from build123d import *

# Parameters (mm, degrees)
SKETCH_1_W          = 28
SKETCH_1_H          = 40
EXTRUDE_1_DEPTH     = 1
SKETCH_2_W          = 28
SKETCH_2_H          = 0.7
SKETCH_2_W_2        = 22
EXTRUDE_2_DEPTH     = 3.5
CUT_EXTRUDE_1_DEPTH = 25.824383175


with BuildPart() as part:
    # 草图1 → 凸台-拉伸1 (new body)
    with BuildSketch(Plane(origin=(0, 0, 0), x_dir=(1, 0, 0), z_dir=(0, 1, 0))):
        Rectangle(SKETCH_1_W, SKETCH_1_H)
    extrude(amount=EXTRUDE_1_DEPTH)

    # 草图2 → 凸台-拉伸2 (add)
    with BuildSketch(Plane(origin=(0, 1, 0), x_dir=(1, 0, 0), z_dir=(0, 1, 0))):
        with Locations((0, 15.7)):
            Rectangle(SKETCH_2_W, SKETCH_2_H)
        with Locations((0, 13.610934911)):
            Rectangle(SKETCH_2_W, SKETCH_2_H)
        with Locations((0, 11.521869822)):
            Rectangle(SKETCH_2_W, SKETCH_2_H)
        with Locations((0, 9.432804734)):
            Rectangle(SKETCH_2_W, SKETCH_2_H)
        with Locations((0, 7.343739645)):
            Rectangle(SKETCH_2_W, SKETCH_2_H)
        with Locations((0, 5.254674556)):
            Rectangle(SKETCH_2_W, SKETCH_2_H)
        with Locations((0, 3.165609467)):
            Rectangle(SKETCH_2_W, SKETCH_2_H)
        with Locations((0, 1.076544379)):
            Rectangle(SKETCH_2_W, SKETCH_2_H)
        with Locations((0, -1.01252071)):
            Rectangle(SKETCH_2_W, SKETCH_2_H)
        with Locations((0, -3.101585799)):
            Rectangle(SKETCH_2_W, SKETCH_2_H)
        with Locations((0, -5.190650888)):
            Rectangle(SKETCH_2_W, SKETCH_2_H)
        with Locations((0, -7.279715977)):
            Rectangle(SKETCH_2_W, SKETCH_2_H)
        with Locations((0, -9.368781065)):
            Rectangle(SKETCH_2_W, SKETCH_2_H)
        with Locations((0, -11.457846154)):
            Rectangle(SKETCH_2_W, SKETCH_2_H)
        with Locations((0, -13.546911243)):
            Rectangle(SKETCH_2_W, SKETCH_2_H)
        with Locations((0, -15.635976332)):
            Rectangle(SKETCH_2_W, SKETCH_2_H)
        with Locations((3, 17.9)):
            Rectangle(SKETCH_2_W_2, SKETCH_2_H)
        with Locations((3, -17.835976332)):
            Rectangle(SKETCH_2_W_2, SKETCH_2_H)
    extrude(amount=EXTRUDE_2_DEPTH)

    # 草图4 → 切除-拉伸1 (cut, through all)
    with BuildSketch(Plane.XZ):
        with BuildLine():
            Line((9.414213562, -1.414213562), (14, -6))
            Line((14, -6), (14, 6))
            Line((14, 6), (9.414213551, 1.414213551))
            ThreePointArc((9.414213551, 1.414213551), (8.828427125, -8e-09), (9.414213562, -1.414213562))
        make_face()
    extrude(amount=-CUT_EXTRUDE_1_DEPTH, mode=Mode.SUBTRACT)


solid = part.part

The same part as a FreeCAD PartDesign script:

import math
import FreeCAD as App
import Part
import Sketcher

V = App.Vector
Q = App.Units.Quantity

doc = App.newDocument("Part")
body = doc.addObject("PartDesign::Body", "Body")

sketch1 = body.newObject("Sketcher::SketchObject", "Sketch")
sketch1.AttachmentSupport = (doc.getObject("XZ_Plane"), [""])
sketch1.MapMode = "FlatFace"
sketch1.addGeometry([
    Part.LineSegment(V(-14, -20, 0), V(-14, 20, 0)),
    Part.LineSegment(V(-14, 20, 0), V(14, 20, 0)),
    Part.LineSegment(V(14, 20, 0), V(14, -20, 0)),
    Part.LineSegment(V(14, -20, 0), V(-14, -20, 0)),
], False)
sketch1.addConstraint([
    Sketcher.Constraint("Coincident", 0, 2, 1, 1),
    Sketcher.Constraint("Coincident", 1, 2, 2, 1),
    Sketcher.Constraint("Coincident", 2, 2, 3, 1),
    Sketcher.Constraint("Coincident", 3, 2, 0, 1),
    Sketcher.Constraint("Vertical", 0),
    Sketcher.Constraint("Horizontal", 1),
    Sketcher.Constraint("Vertical", 2),
    Sketcher.Constraint("Horizontal", 3),
    Sketcher.Constraint("Symmetric", 0, 2, 2, 2, -1, 1),
    Sketcher.Constraint("DistanceX", 1, 1, 1, 2, Q("28 mm")),
    Sketcher.Constraint("DistanceY", 0, 1, 0, 2, Q("40 mm")),
])
pad1 = body.newObject("PartDesign::Pad", "Pad")
pad1.Profile = sketch1
pad1.Length = 1
pad1.Reversed = True

sketch2 = body.newObject("Sketcher::SketchObject", "Sketch001")
sketch2.AttachmentSupport = (doc.getObject("XZ_Plane"), [""])
sketch2.MapMode = "FlatFace"
sketch2.AttachmentOffset = App.Placement(V(0, 0, -1), App.Rotation())
sketch2.addGeometry([
    Part.LineSegment(V(-14, -16.05, 0), V(-14, -15.35, 0)),
    Part.LineSegment(V(-14, -15.35, 0), V(14, -15.35, 0)),
    Part.LineSegment(V(14, -15.35, 0), V(14, -16.05, 0)),
    Part.LineSegment(V(14, -16.05, 0), V(-14, -16.05, 0)),
    Part.LineSegment(V(-14, -13.960935, 0), V(-14, -13.260935, 0)),
    Part.LineSegment(V(-14, -13.260935, 0), V(14, -13.260935, 0)),
    Part.LineSegment(V(14, -13.260935, 0), V(14, -13.960935, 0)),
    Part.LineSegment(V(14, -13.960935, 0), V(-14, -13.960935, 0)),
    Part.LineSegment(V(-14, -11.87187, 0), V(-14, -11.17187, 0)),
    Part.LineSegment(V(-14, -11.17187, 0), V(14, -11.17187, 0)),
    Part.LineSegment(V(14, -11.17187, 0), V(14, -11.87187, 0)),
    Part.LineSegment(V(14, -11.87187, 0), V(-14, -11.87187, 0)),
    Part.LineSegment(V(-14, -9.782805, 0), V(-14, -9.082805, 0)),
    Part.LineSegment(V(-14, -9.082805, 0), V(14, -9.082805, 0)),
    Part.LineSegment(V(14, -9.082805, 0), V(14, -9.782805, 0)),
    Part.LineSegment(V(14, -9.782805, 0), V(-14, -9.782805, 0)),
    Part.LineSegment(V(-14, -7.69374, 0), V(-14, -6.99374, 0)),
    Part.LineSegment(V(-14, -6.99374, 0), V(14, -6.99374, 0)),
    Part.LineSegment(V(14, -6.99374, 0), V(14, -7.69374, 0)),
    Part.LineSegment(V(14, -7.69374, 0), V(-14, -7.69374, 0)),
    Part.LineSegment(V(-14, -5.604675, 0), V(-14, -4.904675, 0)),
    Part.LineSegment(V(-14, -4.904675, 0), V(14, -4.904675, 0)),
    Part.LineSegment(V(14, -4.904675, 0), V(14, -5.604675, 0)),
    Part.LineSegment(V(14, -5.604675, 0), V(-14, -5.604675, 0)),
    Part.LineSegment(V(-14, -3.515609, 0), V(-14, -2.815609, 0)),
    Part.LineSegment(V(-14, -2.815609, 0), V(14, -2.815609, 0)),
    Part.LineSegment(V(14, -2.815609, 0), V(14, -3.515609, 0)),
    Part.LineSegment(V(14, -3.515609, 0), V(-14, -3.515609, 0)),
    Part.LineSegment(V(-14, -1.426544, 0), V(-14, -0.726544, 0)),
    Part.LineSegment(V(-14, -0.726544, 0), V(14, -0.726544, 0)),
    Part.LineSegment(V(14, -0.726544, 0), V(14, -1.426544, 0)),
    Part.LineSegment(V(14, -1.426544, 0), V(-14, -1.426544, 0)),
    Part.LineSegment(V(-14, 0.662521, 0), V(-14, 1.362521, 0)),
    Part.LineSegment(V(-14, 1.362521, 0), V(14, 1.362521, 0)),
    Part.LineSegment(V(14, 1.362521, 0), V(14, 0.662521, 0)),
    Part.LineSegment(V(14, 0.662521, 0), V(-14, 0.662521, 0)),
    Part.LineSegment(V(-14, 2.751586, 0), V(-14, 3.451586, 0)),
    Part.LineSegment(V(-14, 3.451586, 0), V(14, 3.451586, 0)),
    Part.LineSegment(V(14, 3.451586, 0), V(14, 2.751586, 0)),
    Part.LineSegment(V(14, 2.751586, 0), V(-14, 2.751586, 0)),
    Part.LineSegment(V(-14, 4.840651, 0), V(-14, 5.540651, 0)),
    Part.LineSegment(V(-14, 5.540651, 0), V(14, 5.540651, 0)),
    Part.LineSegment(V(14, 5.540651, 0), V(14, 4.840651, 0)),
    Part.LineSegment(V(14, 4.840651, 0), V(-14, 4.840651, 0)),
    Part.LineSegment(V(-14, 6.929716, 0), V(-14, 7.629716, 0)),
    Part.LineSegment(V(-14, 7.629716, 0), V(14, 7.629716, 0)),
    Part.LineSegment(V(14, 7.629716, 0), V(14, 6.929716, 0)),
    Part.LineSegment(V(14, 6.929716, 0), V(-14, 6.929716, 0)),
    Part.LineSegment(V(-14, 9.018781, 0), V(-14, 9.718781, 0)),
    Part.LineSegment(V(-14, 9.718781, 0), V(14, 9.718781, 0)),
    Part.LineSegment(V(14, 9.718781, 0), V(14, 9.018781, 0)),
    Part.LineSegment(V(14, 9.018781, 0), V(-14, 9.018781, 0)),
    Part.LineSegment(V(-14, 11.107846, 0), V(-14, 11.807846, 0)),
    Part.LineSegment(V(-14, 11.807846, 0), V(14, 11.807846, 0)),
    Part.LineSegment(V(14, 11.807846, 0), V(14, 11.107846, 0)),
    Part.LineSegment(V(14, 11.107846, 0), V(-14, 11.107846, 0)),
    Part.LineSegment(V(-14, 13.196911, 0), V(-14, 13.896911, 0)),
    Part.LineSegment(V(-14, 13.896911, 0), V(14, 13.896911, 0)),
    Part.LineSegment(V(14, 13.896911, 0), V(14, 13.196911, 0)),
    Part.LineSegment(V(14, 13.196911, 0), V(-14, 13.196911, 0)),
    Part.LineSegment(V(-14, 15.285976, 0), V(-14, 15.985976, 0)),
    Part.LineSegment(V(-14, 15.985976, 0), V(14, 15.985976, 0)),
    Part.LineSegment(V(14, 15.985976, 0), V(14, 15.285976, 0)),
    Part.LineSegment(V(14, 15.285976, 0), V(-14, 15.285976, 0)),
    Part.LineSegment(V(-8, -18.25, 0), V(-8, -17.55, 0)),
    Part.LineSegment(V(-8, -17.55, 0), V(14, -17.55, 0)),
    Part.LineSegment(V(14, -17.55, 0), V(14, -18.25, 0)),
    Part.LineSegment(V(14, -18.25, 0), V(-8, -18.25, 0)),
    Part.LineSegment(V(-8, 17.485976, 0), V(-8, 18.185976, 0)),
    Part.LineSegment(V(-8, 18.185976, 0), V(14, 18.185976, 0)),
    Part.LineSegment(V(14, 18.185976, 0), V(14, 17.485976, 0)),
    Part.LineSegment(V(14, 17.485976, 0), V(-8, 17.485976, 0)),
], False)
sketch2.addConstraint([
    Sketcher.Constraint("Coincident", 0, 2, 1, 1),
    Sketcher.Constraint("Coincident", 1, 2, 2, 1),
    Sketcher.Constraint("Coincident", 2, 2, 3, 1),
    Sketcher.Constraint("Coincident", 3, 2, 0, 1),
    Sketcher.Constraint("Coincident", 4, 2, 5, 1),
    Sketcher.Constraint("Coincident", 5, 2, 6, 1),
    Sketcher.Constraint("Coincident", 6, 2, 7, 1),
    Sketcher.Constraint("Coincident", 7, 2, 4, 1),
    Sketcher.Constraint("Coincident", 8, 2, 9, 1),
    Sketcher.Constraint("Coincident", 9, 2, 10, 1),
    Sketcher.Constraint("Coincident", 10, 2, 11, 1),
    Sketcher.Constraint("Coincident", 11, 2, 8, 1),
    Sketcher.Constraint("Coincident", 12, 2, 13, 1),
    Sketcher.Constraint("Coincident", 13, 2, 14, 1),
    Sketcher.Constraint("Coincident", 14, 2, 15, 1),
    Sketcher.Constraint("Coincident", 15, 2, 12, 1),
    Sketcher.Constraint("Coincident", 16, 2, 17, 1),
    Sketcher.Constraint("Coincident", 17, 2, 18, 1),
    Sketcher.Constraint("Coincident", 18, 2, 19, 1),
    Sketcher.Constraint("Coincident", 19, 2, 16, 1),
    Sketcher.Constraint("Coincident", 20, 2, 21, 1),
    Sketcher.Constraint("Coincident", 21, 2, 22, 1),
    Sketcher.Constraint("Coincident", 22, 2, 23, 1),
    Sketcher.Constraint("Coincident", 23, 2, 20, 1),
    Sketcher.Constraint("Coincident", 24, 2, 25, 1),
    Sketcher.Constraint("Coincident", 25, 2, 26, 1),
    Sketcher.Constraint("Coincident", 26, 2, 27, 1),
    Sketcher.Constraint("Coincident", 27, 2, 24, 1),
    Sketcher.Constraint("Coincident", 28, 2, 29, 1),
    Sketcher.Constraint("Coincident", 29, 2, 30, 1),
    Sketcher.Constraint("Coincident", 30, 2, 31, 1),
    Sketcher.Constraint("Coincident", 31, 2, 28, 1),
    Sketcher.Constraint("Coincident", 32, 2, 33, 1),
    Sketcher.Constraint("Coincident", 33, 2, 34, 1),
    Sketcher.Constraint("Coincident", 34, 2, 35, 1),
    Sketcher.Constraint("Coincident", 35, 2, 32, 1),
    Sketcher.Constraint("Coincident", 36, 2, 37, 1),
    Sketcher.Constraint("Coincident", 37, 2, 38, 1),
    Sketcher.Constraint("Coincident", 38, 2, 39, 1),
    Sketcher.Constraint("Coincident", 39, 2, 36, 1),
    Sketcher.Constraint("Coincident", 40, 2, 41, 1),
    Sketcher.Constraint("Coincident", 41, 2, 42, 1),
    Sketcher.Constraint("Coincident", 42, 2, 43, 1),
    Sketcher.Constraint("Coincident", 43, 2, 40, 1),
    Sketcher.Constraint("Coincident", 44, 2, 45, 1),
    Sketcher.Constraint("Coincident", 45, 2, 46, 1),
    Sketcher.Constraint("Coincident", 46, 2, 47, 1),
    Sketcher.Constraint("Coincident", 47, 2, 44, 1),
    Sketcher.Constraint("Coincident", 48, 2, 49, 1),
    Sketcher.Constraint("Coincident", 49, 2, 50, 1),
    Sketcher.Constraint("Coincident", 50, 2, 51, 1),
    Sketcher.Constraint("Coincident", 51, 2, 48, 1),
    Sketcher.Constraint("Coincident", 52, 2, 53, 1),
    Sketcher.Constraint("Coincident", 53, 2, 54, 1),
    Sketcher.Constraint("Coincident", 54, 2, 55, 1),
    Sketcher.Constraint("Coincident", 55, 2, 52, 1),
    Sketcher.Constraint("Coincident", 56, 2, 57, 1),
    Sketcher.Constraint("Coincident", 57, 2, 58, 1),
    Sketcher.Constraint("Coincident", 58, 2, 59, 1),
    Sketcher.Constraint("Coincident", 59, 2, 56, 1),
    Sketcher.Constraint("Coincident", 60, 2, 61, 1),
    Sketcher.Constraint("Coincident", 61, 2, 62, 1),
    Sketcher.Constraint("Coincident", 62, 2, 63, 1),
    Sketcher.Constraint("Coincident", 63, 2, 60, 1),
    Sketcher.Constraint("Coincident", 64, 2, 65, 1),
    Sketcher.Constraint("Coincident", 65, 2, 66, 1),
    Sketcher.Constraint("Coincident", 66, 2, 67, 1),
    Sketcher.Constraint("Coincident", 67, 2, 64, 1),
    Sketcher.Constraint("Coincident", 68, 2, 69, 1),
    Sketcher.Constraint("Coincident", 69, 2, 70, 1),
    Sketcher.Constraint("Coincident", 70, 2, 71, 1),
    Sketcher.Constraint("Coincident", 71, 2, 68, 1),
    Sketcher.Constraint("Vertical", 0),
    Sketcher.Constraint("Horizontal", 1),
    Sketcher.Constraint("Vertical", 2),
    Sketcher.Constraint("Horizontal", 3),
    Sketcher.Constraint("Vertical", 4),
    Sketcher.Constraint("Horizontal", 5),
    Sketcher.Constraint("Vertical", 6),
    Sketcher.Constraint("Horizontal", 7),
    Sketcher.Constraint("Vertical", 8),
    Sketcher.Constraint("Horizontal", 9),
    Sketcher.Constraint("Vertical", 10),
    Sketcher.Constraint("Horizontal", 11),
    Sketcher.Constraint("Vertical", 12),
    Sketcher.Constraint("Horizontal", 13),
    Sketcher.Constraint("Vertical", 14),
    Sketcher.Constraint("Horizontal", 15),
    Sketcher.Constraint("Vertical", 16),
    Sketcher.Constraint("Horizontal", 17),
    Sketcher.Constraint("Vertical", 18),
    Sketcher.Constraint("Horizontal", 19),
    Sketcher.Constraint("Vertical", 20),
    Sketcher.Constraint("Horizontal", 21),
    Sketcher.Constraint("Vertical", 22),
    Sketcher.Constraint("Horizontal", 23),
    Sketcher.Constraint("Vertical", 24),
    Sketcher.Constraint("Horizontal", 25),
    Sketcher.Constraint("Vertical", 26),
    Sketcher.Constraint("Horizontal", 27),
    Sketcher.Constraint("Vertical", 28),
    Sketcher.Constraint("Horizontal", 29),
    Sketcher.Constraint("Vertical", 30),
    Sketcher.Constraint("Horizontal", 31),
    Sketcher.Constraint("Vertical", 32),
    Sketcher.Constraint("Horizontal", 33),
    Sketcher.Constraint("Vertical", 34),
    Sketcher.Constraint("Horizontal", 35),
    Sketcher.Constraint("Vertical", 36),
    Sketcher.Constraint("Horizontal", 37),
    Sketcher.Constraint("Vertical", 38),
    Sketcher.Constraint("Horizontal", 39),
    Sketcher.Constraint("Vertical", 40),
    Sketcher.Constraint("Horizontal", 41),
    Sketcher.Constraint("Vertical", 42),
    Sketcher.Constraint("Horizontal", 43),
    Sketcher.Constraint("Vertical", 44),
    Sketcher.Constraint("Horizontal", 45),
    Sketcher.Constraint("Vertical", 46),
    Sketcher.Constraint("Horizontal", 47),
    Sketcher.Constraint("Vertical", 48),
    Sketcher.Constraint("Horizontal", 49),
    Sketcher.Constraint("Vertical", 50),
    Sketcher.Constraint("Horizontal", 51),
    Sketcher.Constraint("Vertical", 52),
    Sketcher.Constraint("Horizontal", 53),
    Sketcher.Constraint("Vertical", 54),
    Sketcher.Constraint("Horizontal", 55),
    Sketcher.Constraint("Vertical", 56),
    Sketcher.Constraint("Horizontal", 57),
    Sketcher.Constraint("Vertical", 58),
    Sketcher.Constraint("Horizontal", 59),
    Sketcher.Constraint("Vertical", 60),
    Sketcher.Constraint("Horizontal", 61),
    Sketcher.Constraint("Vertical", 62),
    Sketcher.Constraint("Horizontal", 63),
    Sketcher.Constraint("Vertical", 64),
    Sketcher.Constraint("Horizontal", 65),
    Sketcher.Constraint("Vertical", 66),
    Sketcher.Constraint("Horizontal", 67),
    Sketcher.Constraint("Vertical", 68),
    Sketcher.Constraint("Horizontal", 69),
    Sketcher.Constraint("Vertical", 70),
    Sketcher.Constraint("Horizontal", 71),
    Sketcher.Constraint("Vertical", 3, 2, 4, 2),
    Sketcher.Constraint("Vertical", 2, 2, 5, 2),
    Sketcher.Constraint("Vertical", 7, 2, 8, 2),
    Sketcher.Constraint("Vertical", 6, 2, 9, 2),
    Sketcher.Constraint("Vertical", 11, 2, 12, 2),
    Sketcher.Constraint("Vertical", 10, 2, 13, 2),
    Sketcher.Constraint("Vertical", 15, 2, 16, 2),
    Sketcher.Constraint("Vertical", 14, 2, 17, 2),
    Sketcher.Constraint("Vertical", 19, 2, 20, 2),
    Sketcher.Constraint("Vertical", 18, 2, 21, 2),
    Sketcher.Constraint("Vertical", 23, 2, 24, 2),
    Sketcher.Constraint("Vertical", 22, 2, 25, 2),
    Sketcher.Constraint("Vertical", 27, 2, 28, 2),
    Sketcher.Constraint("Vertical", 26, 2, 29, 2),
    Sketcher.Constraint("Vertical", 31, 2, 32, 2),
    Sketcher.Constraint("Vertical", 30, 2, 33, 2),
    Sketcher.Constraint("Vertical", 35, 2, 36, 2),
    Sketcher.Constraint("Vertical", 34, 2, 37, 2),
    Sketcher.Constraint("Vertical", 39, 2, 40, 2),
    Sketcher.Constraint("Vertical", 38, 2, 41, 2),
    Sketcher.Constraint("Vertical", 43, 2, 44, 2),
    Sketcher.Constraint("Vertical", 42, 2, 45, 2),
    Sketcher.Constraint("Vertical", 47, 2, 48, 2),
    Sketcher.Constraint("Vertical", 46, 2, 49, 2),
    Sketcher.Constraint("Vertical", 51, 2, 52, 2),
    Sketcher.Constraint("Vertical", 50, 2, 53, 2),
    Sketcher.Constraint("Vertical", 55, 2, 56, 2),
    Sketcher.Constraint("Vertical", 54, 2, 57, 2),
    Sketcher.Constraint("Vertical", 59, 2, 60, 2),
    Sketcher.Constraint("Vertical", 58, 2, 61, 2),
    Sketcher.Constraint("Vertical", 62, 2, 65, 2),
    Sketcher.Constraint("Vertical", 67, 2, 68, 2),
    Sketcher.Constraint("Vertical", 66, 2, 69, 2),
    Sketcher.Constraint("Equal", 2, 4),
    Sketcher.Constraint("Equal", 6, 8),
    Sketcher.Constraint("Equal", 10, 12),
    Sketcher.Constraint("Equal", 14, 16),
    Sketcher.Constraint("Equal", 18, 20),
    Sketcher.Constraint("Equal", 22, 24),
    Sketcher.Constraint("Equal", 26, 28),
    Sketcher.Constraint("Equal", 30, 32),
    Sketcher.Constraint("Equal", 34, 36),
    Sketcher.Constraint("Equal", 38, 40),
    Sketcher.Constraint("Equal", 42, 44),
    Sketcher.Constraint("Equal", 46, 48),
    Sketcher.Constraint("Equal", 50, 52),
    Sketcher.Constraint("Equal", 54, 56),
    Sketcher.Constraint("Equal", 58, 60),
    Sketcher.Constraint("Equal", 62, 64),
    Sketcher.Constraint("Equal", 66, 68),
    Sketcher.Constraint("DistanceX", 1, 1, 1, 2, Q("28 mm")),
    Sketcher.Constraint("DistanceX", 65, 1, 65, 2, Q("22 mm")),
    Sketcher.Constraint("DistanceY", 0, 1, 0, 2, Q("0.7 mm")),
    Sketcher.Constraint("DistanceX", 0, 2, -1, 1, Q("14 mm")),
    Sketcher.Constraint("DistanceY", 0, 2, -1, 1, Q("15.35 mm")),
    Sketcher.Constraint("DistanceY", 64, 2, -1, 1, Q("17.55 mm")),
    Sketcher.Constraint("DistanceY", 8, 2, -1, 1, Q("11.17187 mm")),
    Sketcher.Constraint("DistanceY", 16, 2, -1, 1, Q("6.99374 mm")),
    Sketcher.Constraint("DistanceY", 24, 2, -1, 1, Q("2.815609 mm")),
    Sketcher.Constraint("DistanceY", -1, 1, 32, 2, Q("1.362521 mm")),
    Sketcher.Constraint("DistanceY", -1, 1, 40, 2, Q("5.540651 mm")),
    Sketcher.Constraint("DistanceY", -1, 1, 48, 2, Q("9.718781 mm")),
    Sketcher.Constraint("DistanceY", -1, 1, 56, 2, Q("13.896911 mm")),
    Sketcher.Constraint("DistanceY", 4, 2, -1, 1, Q("13.260935 mm")),
    Sketcher.Constraint("DistanceY", 12, 2, -1, 1, Q("9.082805 mm")),
    Sketcher.Constraint("DistanceY", 20, 2, -1, 1, Q("4.904675 mm")),
    Sketcher.Constraint("DistanceY", 28, 2, -1, 1, Q("0.726544 mm")),
    Sketcher.Constraint("DistanceY", -1, 1, 36, 2, Q("3.451586 mm")),
    Sketcher.Constraint("DistanceY", -1, 1, 44, 2, Q("7.629716 mm")),
    Sketcher.Constraint("DistanceY", -1, 1, 52, 2, Q("11.807846 mm")),
    Sketcher.Constraint("DistanceY", -1, 1, 60, 2, Q("15.985976 mm")),
    Sketcher.Constraint("DistanceY", -1, 1, 68, 2, Q("18.185976 mm")),
])
pad2 = body.newObject("PartDesign::Pad", "Pad001")
pad2.Profile = sketch2
pad2.Length = 3.5
pad2.Reversed = True

sketch3 = body.newObject("Sketcher::SketchObject", "Sketch002")
sketch3.AttachmentSupport = (doc.getObject("XZ_Plane"), [""])
sketch3.MapMode = "FlatFace"
sketch3.addGeometry([
    Part.LineSegment(V(9.414214, -1.414214, 0), V(14, -6, 0)),
    Part.LineSegment(V(14, -6, 0), V(14, 6, 0)),
    Part.LineSegment(V(14, 6, 0), V(9.414214, 1.414214, 0)),
    Part.ArcOfCircle(Part.Circle(V(10.828427, 0, 0), V(0, 0, 1), 2), math.radians(135), math.radians(225)),
], False)
sketch3.addConstraint([
    Sketcher.Constraint("Coincident", 0, 2, 1, 1),
    Sketcher.Constraint("Coincident", 1, 2, 2, 1),
    Sketcher.Constraint("Tangent", 2, 2, 3, 1),
    Sketcher.Constraint("Tangent", 3, 2, 0, 1),
    Sketcher.Constraint("Vertical", 1),
    Sketcher.Constraint("Symmetric", 2, 2, 3, 2, -1),
    Sketcher.Constraint("Perpendicular", 0, 2),
    Sketcher.Constraint("Radius", 3, Q("2 mm")),
    Sketcher.Constraint("DistanceY", 1, 1, 1, 2, Q("12 mm")),
    Sketcher.Constraint("DistanceX", -1, 1, 0, 2, Q("14 mm")),
])
pocket1 = body.newObject("PartDesign::Pocket", "Pocket")
pocket1.Profile = sketch3
pocket1.Type = "ThroughAll"

doc.recompute()
